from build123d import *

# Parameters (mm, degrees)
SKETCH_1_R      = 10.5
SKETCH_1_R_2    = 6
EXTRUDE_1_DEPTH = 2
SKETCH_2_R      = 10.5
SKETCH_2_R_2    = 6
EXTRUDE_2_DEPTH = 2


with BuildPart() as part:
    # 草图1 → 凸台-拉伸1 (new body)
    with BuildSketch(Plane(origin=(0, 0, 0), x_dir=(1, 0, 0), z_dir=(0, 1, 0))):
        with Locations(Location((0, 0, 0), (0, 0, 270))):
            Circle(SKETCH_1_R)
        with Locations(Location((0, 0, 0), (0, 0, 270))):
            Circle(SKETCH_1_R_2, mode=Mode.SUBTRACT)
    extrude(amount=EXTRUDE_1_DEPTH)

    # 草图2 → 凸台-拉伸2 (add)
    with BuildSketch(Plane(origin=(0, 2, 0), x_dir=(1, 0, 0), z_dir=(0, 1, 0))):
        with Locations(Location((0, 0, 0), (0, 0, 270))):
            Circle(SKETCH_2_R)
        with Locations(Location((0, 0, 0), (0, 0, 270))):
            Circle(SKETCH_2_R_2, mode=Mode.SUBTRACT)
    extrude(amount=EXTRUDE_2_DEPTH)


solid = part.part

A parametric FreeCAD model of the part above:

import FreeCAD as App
import Part
import Sketcher

V = App.Vector
Q = App.Units.Quantity

doc = App.newDocument("Part")
body = doc.addObject("PartDesign::Body", "Body")

# Sketch on XZ plane
sketch1 = doc.addObject("Sketcher::SketchObject", "Sketch")
body.addObject(sketch1)
sketch1.AttachmentSupport = (doc.XZ_Plane, [""])
sketch1.MapMode = "FlatFace"
sketch1.addGeometry(Part.Circle(V(0, 0, 0), V(0, 0, 1), 10), False)
sketch1.addGeometry(Part.Circle(V(0, 0, 0), V(0, 0, 1), 6), False)
sketch1.addConstraint(Sketcher.Constraint("Coincident", 0, 3, -1, 1))
sketch1.addConstraint(Sketcher.Constraint("Coincident", 1, 3, -1, 1))
sketch1.addConstraint(Sketcher.Constraint("Diameter", 0, Q("21 mm")))
sketch1.addConstraint(Sketcher.Constraint("Diameter", 1, Q("12 mm")))
pad1 = doc.addObject("PartDesign::Pad", "Pad")
body.addObject(pad1)
pad1.Profile = sketch1
pad1.Length = 2
pad1.Reversed = True

# Sketch on XZ plane
sketch2 = doc.addObject("Sketcher::SketchObject", "Sketch001")
body.addObject(sketch2)
sketch2.AttachmentSupport = (doc.XZ_Plane, [""])
sketch2.MapMode = "FlatFace"
sketch2.AttachmentOffset = App.Placement(V(0, 0, -2), App.Rotation())
sketch2.addGeometry(Part.Circle(V(0, 0, 0), V(0, 0, 1), 10), False)
sketch2.addGeometry(Part.Circle(V(0, 0, 0), V(0, 0, 1), 6), False)
sketch2.addConstraint(Sketcher.Constraint("Coincident", 0, 3, -1, 1))
sketch2.addConstraint(Sketcher.Constraint("Coincident", 1, 3, -1, 1))
sketch2.addConstraint(Sketcher.Constraint("Diameter", 0, Q("21 mm")))
sketch2.addConstraint(Sketcher.Constraint("Diameter", 1, Q("12 mm")))
pad2 = doc.addObject("PartDesign::Pad", "Pad001")
body.addObject(pad2)
pad2.Profile = sketch2
pad2.Length = 2
pad2.Reversed = True

doc.recompute()
